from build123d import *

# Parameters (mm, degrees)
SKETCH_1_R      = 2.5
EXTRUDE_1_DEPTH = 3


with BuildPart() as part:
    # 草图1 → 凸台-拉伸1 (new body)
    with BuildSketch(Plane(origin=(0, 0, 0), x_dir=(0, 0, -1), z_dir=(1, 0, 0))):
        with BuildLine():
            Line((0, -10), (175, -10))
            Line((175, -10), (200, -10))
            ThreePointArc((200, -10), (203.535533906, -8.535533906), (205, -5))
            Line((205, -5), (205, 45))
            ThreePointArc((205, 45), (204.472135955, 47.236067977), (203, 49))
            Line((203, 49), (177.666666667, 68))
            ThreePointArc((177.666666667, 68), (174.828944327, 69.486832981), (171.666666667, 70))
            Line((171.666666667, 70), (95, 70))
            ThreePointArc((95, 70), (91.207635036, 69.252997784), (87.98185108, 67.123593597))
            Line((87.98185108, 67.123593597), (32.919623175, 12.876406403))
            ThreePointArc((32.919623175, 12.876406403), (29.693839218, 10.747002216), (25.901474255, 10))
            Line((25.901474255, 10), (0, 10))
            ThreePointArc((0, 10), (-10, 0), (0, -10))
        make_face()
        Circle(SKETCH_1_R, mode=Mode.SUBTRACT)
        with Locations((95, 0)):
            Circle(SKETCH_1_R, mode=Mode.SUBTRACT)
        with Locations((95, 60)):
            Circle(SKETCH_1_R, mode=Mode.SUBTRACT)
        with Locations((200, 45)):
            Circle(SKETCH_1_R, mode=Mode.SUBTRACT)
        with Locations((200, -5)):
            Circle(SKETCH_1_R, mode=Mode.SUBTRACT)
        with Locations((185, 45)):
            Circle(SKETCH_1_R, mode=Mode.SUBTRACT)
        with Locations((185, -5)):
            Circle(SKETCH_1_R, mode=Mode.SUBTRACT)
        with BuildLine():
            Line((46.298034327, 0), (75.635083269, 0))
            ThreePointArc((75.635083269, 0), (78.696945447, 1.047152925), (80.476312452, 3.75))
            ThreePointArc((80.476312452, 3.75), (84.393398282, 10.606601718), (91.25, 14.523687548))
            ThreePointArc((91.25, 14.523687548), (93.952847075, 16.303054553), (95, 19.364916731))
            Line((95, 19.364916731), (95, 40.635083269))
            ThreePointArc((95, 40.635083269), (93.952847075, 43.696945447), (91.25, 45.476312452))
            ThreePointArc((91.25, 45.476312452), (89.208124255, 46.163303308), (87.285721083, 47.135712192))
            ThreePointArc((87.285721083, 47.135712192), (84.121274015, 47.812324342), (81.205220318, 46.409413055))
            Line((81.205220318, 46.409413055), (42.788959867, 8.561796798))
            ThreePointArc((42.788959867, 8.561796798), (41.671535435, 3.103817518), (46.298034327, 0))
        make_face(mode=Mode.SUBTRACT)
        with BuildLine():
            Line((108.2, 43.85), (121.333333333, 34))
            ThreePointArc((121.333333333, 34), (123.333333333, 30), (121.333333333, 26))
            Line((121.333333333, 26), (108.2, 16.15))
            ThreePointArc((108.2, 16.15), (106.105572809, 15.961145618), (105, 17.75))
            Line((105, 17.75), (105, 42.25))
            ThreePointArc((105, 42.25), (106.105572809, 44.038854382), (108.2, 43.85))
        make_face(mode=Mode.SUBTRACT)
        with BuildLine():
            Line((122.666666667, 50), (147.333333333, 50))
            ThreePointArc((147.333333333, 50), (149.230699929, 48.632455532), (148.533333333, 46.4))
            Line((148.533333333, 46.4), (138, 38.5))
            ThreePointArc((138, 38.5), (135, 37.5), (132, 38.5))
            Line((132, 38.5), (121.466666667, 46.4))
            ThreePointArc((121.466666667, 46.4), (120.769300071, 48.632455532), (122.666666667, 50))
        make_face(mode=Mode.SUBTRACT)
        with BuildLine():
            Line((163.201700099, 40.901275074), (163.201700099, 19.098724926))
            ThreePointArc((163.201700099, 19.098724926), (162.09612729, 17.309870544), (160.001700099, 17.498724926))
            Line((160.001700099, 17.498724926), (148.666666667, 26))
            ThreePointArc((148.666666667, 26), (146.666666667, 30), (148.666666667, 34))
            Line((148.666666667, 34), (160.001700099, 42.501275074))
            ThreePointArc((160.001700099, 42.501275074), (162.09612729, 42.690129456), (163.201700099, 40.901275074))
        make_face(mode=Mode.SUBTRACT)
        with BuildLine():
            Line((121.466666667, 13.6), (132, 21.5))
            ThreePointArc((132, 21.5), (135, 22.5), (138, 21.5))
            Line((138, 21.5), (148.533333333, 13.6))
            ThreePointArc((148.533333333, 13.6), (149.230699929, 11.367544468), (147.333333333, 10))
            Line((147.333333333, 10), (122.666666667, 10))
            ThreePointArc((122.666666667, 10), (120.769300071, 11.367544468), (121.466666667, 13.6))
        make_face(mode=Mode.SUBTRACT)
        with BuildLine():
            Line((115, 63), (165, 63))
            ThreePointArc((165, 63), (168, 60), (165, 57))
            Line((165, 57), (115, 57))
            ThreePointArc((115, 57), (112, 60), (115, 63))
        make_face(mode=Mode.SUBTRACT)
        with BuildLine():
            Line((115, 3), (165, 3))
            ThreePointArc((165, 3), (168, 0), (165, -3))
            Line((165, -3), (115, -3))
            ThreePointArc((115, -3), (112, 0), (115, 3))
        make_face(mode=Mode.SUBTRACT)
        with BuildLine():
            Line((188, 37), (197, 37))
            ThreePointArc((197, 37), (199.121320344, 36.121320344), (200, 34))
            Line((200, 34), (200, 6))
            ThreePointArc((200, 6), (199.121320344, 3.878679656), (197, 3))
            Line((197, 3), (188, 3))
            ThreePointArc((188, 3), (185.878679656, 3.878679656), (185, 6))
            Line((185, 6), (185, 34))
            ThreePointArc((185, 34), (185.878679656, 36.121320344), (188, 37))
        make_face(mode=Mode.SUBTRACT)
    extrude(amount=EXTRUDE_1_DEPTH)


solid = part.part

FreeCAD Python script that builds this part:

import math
import FreeCAD as App
import Part
import Sketcher

doc = App.newDocument("Part")
body = doc.addObject("PartDesign::Body", "Body")

# Sketch on YZ plane
sketch1 = body.newObject("Sketcher::SketchObject", "Sketch")
sketch1.AttachmentSupport = (doc.getObject("YZ_Plane"), [""])
sketch1.MapMode = "FlatFace"
sketch1.addGeometry(Part.LineSegment(App.Vector(-10, 0, 0), App.Vector(-10, -200, 0)), False)
sketch1.addGeometry(Part.ArcOfCircle(Part.Circle(App.Vector(-5, -200, 0), App.Vector(0, 0, 1), 5), math.radians(180), math.radians(270)), False)
sketch1.addGeometry(Part.LineSegment(App.Vector(-5, -205, 0), App.Vector(45, -205, 0)), False)
sketch1.addGeometry(Part.ArcOfCircle(Part.Circle(App.Vector(45, -200, 0), App.Vector(0, 0, 1), 5), math.radians(-90), math.radians(-37)), False)
sketch1.addGeometry(Part.LineSegment(App.Vector(49, -203, 0), App.Vector(68, -177.7, 0)), False)
sketch1.addGeometry(Part.ArcOfCircle(Part.Circle(App.Vector(60, -171.7, 0), App.Vector(0, 0, 1), 10), math.radians(-37), math.radians(0)), False)
sketch1.addGeometry(Part.LineSegment(App.Vector(70, -171.7, 0), App.Vector(70, -95, 0)), False)
sketch1.addGeometry(Part.ArcOfCircle(Part.Circle(App.Vector(60, -95, 0), App.Vector(0, 0, 1), 10), math.radians(0), math.radians(45)), False)
sketch1.addGeometry(Part.LineSegment(App.Vector(67.1, -88, 0), App.Vector(12.9, -32.9, 0)), False)
sketch1.addGeometry(Part.ArcOfCircle(Part.Circle(App.Vector(20, -25.9, 0), App.Vector(0, 0, 1), 10), math.radians(180), math.radians(225)), False)
sketch1.addGeometry(Part.LineSegment(App.Vector(10, -25.9, 0), App.Vector(10, 0, 0)), False)
sketch1.addGeometry(Part.ArcOfCircle(Part.Circle(App.Vector(0, 0, 0), App.Vector(0, 0, 1), 10), math.radians(0), math.radians(180)), False)
sketch1.addGeometry(Part.Circle(App.Vector(0, 0, 0), App.Vector(0, 0, 1), 2.5), False)
sketch1.addGeometry(Part.Circle(App.Vector(0, -95, 0), App.Vector(0, 0, 1), 2.5), False)
sketch1.addGeometry(Part.LineSegment(App.Vector(0, -75.6, 0), App.Vector(0, -46.3, 0)), False)
sketch1.addGeometry(Part.ArcOfCircle(Part.Circle(App.Vector(5, -46.3, 0), App.Vector(0, 0, 1), 5), math.radians(45), math.radians(180)), False)
sketch1.addGeometry(Part.LineSegment(App.Vector(8.6, -42.8, 0), App.Vector(46.4, -81.2, 0)), False)
sketch1.addGeometry(Part.ArcOfCircle(Part.Circle(App.Vector(42.8, -84.7, 0), App.Vector(0, 0, 1), 5), math.radians(-31), math.radians(45)), False)
sketch1.addGeometry(Part.ArcOfCircle(Part.Circle(App.Vector(60, -95, 0), App.Vector(0, 0, 1), 15), math.radians(149.05), math.radians(165.52)), False)
sketch1.addGeometry(Part.ArcOfCircle(Part.Circle(App.Vector(40.6, -90, 0), App.Vector(0, 0, 1), 5), math.radians(-90), math.radians(-14)), False)
sketch1.addGeometry(Part.LineSegment(App.Vector(40.6, -95, 0), App.Vector(19.4, -95, 0)), False)
sketch1.addGeometry(Part.ArcOfCircle(Part.Circle(App.Vector(19.4, -90, 0), App.Vector(0, 0, 1), 5), math.radians(-166), math.radians(-90)), False)
sketch1.addGeometry(Part.ArcOfCircle(Part.Circle(App.Vector(0, -95, 0), App.Vector(0, 0, 1), 15), math.radians(14), math.radians(76)), False)
sketch1.addGeometry(Part.ArcOfCircle(Part.Circle(App.Vector(5, -75.6, 0), App.Vector(0, 0, 1), 5), math.radians(-180), math.radians(-104)), False)
sketch1.addGeometry(Part.ArcOfCircle(Part.Circle(App.Vector(0, -115, 0), App.Vector(0, 0, 1), 3), math.radians(0), math.radians(180)), False)
sketch1.addGeometry(Part.LineSegment(App.Vector(3, -115, 0), App.Vector(3, -165, 0)), False)
sketch1.addGeometry(Part.ArcOfCircle(Part.Circle(App.Vector(0, -165, 0), App.Vector(0, 0, 1), 3), math.radians(180), math.radians(360)), False)
sketch1.addGeometry(Part.LineSegment(App.Vector(-3, -165, 0), App.Vector(-3, -115, 0)), False)
sketch1.addGeometry(Part.Circle(App.Vector(-5, -185, 0), App.Vector(0, 0, 1), 2.5), False)
sketch1.addGeometry(Part.Circle(App.Vector(-5, -200, 0), App.Vector(0, 0, 1), 2.5), False)
sketch1.addGeometry(Part.ArcOfCircle(Part.Circle(App.Vector(12, -122.7, 0), App.Vector(0, 0, 1), 2), math.radians(37), math.radians(180)), False)
sketch1.addGeometry(Part.LineSegment(App.Vector(13.6, -121.5, 0), App.Vector(21.5, -132, 0)), False)
sketch1.addGeometry(Part.ArcOfCircle(Part.Circle(App.Vector(17.5, -135, 0), App.Vector(0, 0, 1), 5), math.radians(-37), math.radians(37)), False)
sketch1.addGeometry(Part.LineSegment(App.Vector(21.5, -138, 0), App.Vector(13.6, -148.5, 0)), False)
sketch1.addGeometry(Part.ArcOfCircle(Part.Circle(App.Vector(12, -147.3, 0), App.Vector(0, 0, 1), 2), math.radians(180), math.radians(323)), False)
sketch1.addGeometry(Part.LineSegment(App.Vector(10, -147.3, 0), App.Vector(10, -122.7, 0)), False)
sketch1.addGeometry(Part.ArcOfCircle(Part.Circle(App.Vector(34, -188, 0), App.Vector(0, 0, 1), 3), math.radians(0), math.radians(90)), False)
sketch1.addGeometry(Part.LineSegment(App.Vector(37, -188, 0), App.Vector(37, -197, 0)), False)
sketch1.addGeometry(Part.ArcOfCircle(Part.Circle(App.Vector(34, -197, 0), App.Vector(0, 0, 1), 3), math.radians(-90), math.radians(0)), False)
sketch1.addGeometry(Part.LineSegment(App.Vector(34, -200, 0), App.Vector(6, -200, 0)), False)
sketch1.addGeometry(Part.ArcOfCircle(Part.Circle(App.Vector(6, -197, 0), App.Vector(0, 0, 1), 3), math.radians(180), math.radians(270)), False)
sketch1.addGeometry(Part.LineSegment(App.Vector(3, -197, 0), App.Vector(3, -188, 0)), False)
sketch1.addGeometry(Part.ArcOfCircle(Part.Circle(App.Vector(6, -188, 0), App.Vector(0, 0, 1), 3), math.radians(90), math.radians(180)), False)
sketch1.addGeometry(Part.LineSegment(App.Vector(6, -185, 0), App.Vector(34, -185, 0)), False)
sketch1.addGeometry(Part.Circle(App.Vector(60, -95, 0), App.Vector(0, 0, 1), 2.5), False)
sketch1.addGeometry(Part.ArcOfCircle(Part.Circle(App.Vector(42.2, -107, 0), App.Vector(0, 0, 1), 2), math.radians(-37), math.radians(90)), False)
sketch1.addGeometry(Part.LineSegment(App.Vector(43.9, -108.2, 0), App.Vector(34, -121.3, 0)), False)
sketch1.addGeometry(Part.ArcOfCircle(Part.Circle(App.Vector(30, -118.3, 0), App.Vector(0, 0, 1), 5), math.radians(-143), math.radians(-37)), False)
sketch1.addGeometry(Part.LineSegment(App.Vector(26, -121.3, 0), App.Vector(16.1, -108.2, 0)), False)
sketch1.addGeometry(Part.ArcOfCircle(Part.Circle(App.Vector(17.8, -107, 0), App.Vector(0, 0, 1), 2), math.radians(90), math.radians(217)), False)
sketch1.addGeometry(Part.LineSegment(App.Vector(17.8, -105, 0), App.Vector(42.2, -105, 0)), False)
sketch1.addGeometry(Part.ArcOfCircle(Part.Circle(App.Vector(48, -122.7, 0), App.Vector(0, 0, 1), 2), math.radians(0), math.radians(143)), False)
sketch1.addGeometry(Part.LineSegment(App.Vector(50, -122.7, 0), App.Vector(50, -147.3, 0)), False)
sketch1.addGeometry(Part.ArcOfCircle(Part.Circle(App.Vector(48, -147.3, 0), App.Vector(0, 0, 1), 2), math.radians(-143), math.radians(0)), False)
sketch1.addGeometry(Part.LineSegment(App.Vector(46.4, -148.5, 0), App.Vector(38.5, -138, 0)), False)
sketch1.addGeometry(Part.ArcOfCircle(Part.Circle(App.Vector(42.5, -135, 0), App.Vector(0, 0, 1), 5), math.radians(143), math.radians(217)), False)
sketch1.addGeometry(Part.LineSegment(App.Vector(38.5, -132, 0), App.Vector(46.4, -121.5, 0)), False)
sketch1.addGeometry(Part.ArcOfCircle(Part.Circle(App.Vector(40.9, -161.2, 0), App.Vector(0, 0, 1), 2), math.radians(-90), math.radians(37)), False)
sketch1.addGeometry(Part.LineSegment(App.Vector(40.9, -163.2, 0), App.Vector(19.1, -163.2, 0)), False)
sketch1.addGeometry(Part.ArcOfCircle(Part.Circle(App.Vector(19.1, -161.2, 0), App.Vector(0, 0, 1), 2), math.radians(143), math.radians(270)), False)
sketch1.addGeometry(Part.LineSegment(App.Vector(17.5, -160, 0), App.Vector(26, -148.7, 0)), False)
sketch1.addGeometry(Part.ArcOfCircle(Part.Circle(App.Vector(30, -151.7, 0), App.Vector(0, 0, 1), 5), math.radians(37), math.radians(143)), False)
sketch1.addGeometry(Part.LineSegment(App.Vector(34, -148.7, 0), App.Vector(42.5, -160, 0)), False)
sketch1.addGeometry(Part.Circle(App.Vector(45, -185, 0), App.Vector(0, 0, 1), 2.5), False)
sketch1.addGeometry(Part.Circle(App.Vector(45, -200, 0), App.Vector(0, 0, 1), 2.5), False)
sketch1.addGeometry(Part.ArcOfCircle(Part.Circle(App.Vector(60, -115, 0), App.Vector(0, 0, 1), 3), math.radians(0), math.radians(180)), False)
sketch1.addGeometry(Part.LineSegment(App.Vector(63, -115, 0), App.Vector(63, -165, 0)), False)
sketch1.addGeometry(Part.ArcOfCircle(Part.Circle(App.Vector(60, -165, 0), App.Vector(0, 0, 1), 3), math.radians(180), math.radians(360)), False)
sketch1.addGeometry(Part.LineSegment(App.Vector(57, -165, 0), App.Vector(57, -115, 0)), False)
sketch1.addConstraint(Sketcher.Constraint("Tangent", 0, 2, 1, 1))
sketch1.addConstraint(Sketcher.Constraint("Tangent", 1, 2, 2, 1))
sketch1.addConstraint(Sketcher.Constraint("Tangent", 2, 2, 3, 1))
sketch1.addConstraint(Sketcher.Constraint("Tangent", 3, 2, 4, 1))
sketch1.addConstraint(Sketcher.Constraint("Tangent", 4, 2, 5, 1))
sketch1.addConstraint(Sketcher.Constraint("Tangent", 5, 2, 6, 1))
sketch1.addConstraint(Sketcher.Constraint("Tangent", 6, 2, 7, 1))
sketch1.addConstraint(Sketcher.Constraint("Tangent", 7, 2, 8, 1))
sketch1.addConstraint(Sketcher.Constraint("Tangent", 8, 2, 9, 2))
sketch1.addConstraint(Sketcher.Constraint("Tangent", 9, 1, 10, 1))
sketch1.addConstraint(Sketcher.Constraint("Tangent", 10, 2, 11, 1))
sketch1.addConstraint(Sketcher.Constraint("Tangent", 11, 2, 0, 1))
sketch1.addConstraint(Sketcher.Constraint("Tangent", 14, 2, 15, 2))
sketch1.addConstraint(Sketcher.Constraint("Tangent", 15, 1, 16, 1))
sketch1.addConstraint(Sketcher.Constraint("Tangent", 16, 2, 17, 2))
sketch1.addConstraint(Sketcher.Constraint("Tangent", 17, 1, 18, 1))
sketch1.addConstraint(Sketcher.Constraint("Tangent", 18, 2, 19, 2))
sketch1.addConstraint(Sketcher.Constraint("Tangent", 19, 1, 20, 1))
sketch1.addConstraint(Sketcher.Constraint("Tangent", 20, 2, 21, 2))
sketch1.addConstraint(Sketcher.Constraint("Tangent", 21, 1, 22, 1))
sketch1.addConstraint(Sketcher.Constraint("Tangent", 22, 2, 23, 2))
sketch1.addConstraint(Sketcher.Constraint("Tangent", 23, 1, 14, 1))
sketch1.addConstraint(Sketcher.Constraint("Tangent", 24, 1, 25, 1))
sketch1.addConstraint(Sketcher.Constraint("Tangent", 25, 2, 26, 2))
sketch1.addConstraint(Sketcher.Constraint("Tangent", 26, 1, 27, 1))
sketch1.addConstraint(Sketcher.Constraint("Tangent", 27, 2, 24, 2))
sketch1.addConstraint(Sketcher.Constraint("Tangent", 30, 1, 31, 1))
sketch1.addConstraint(Sketcher.Constraint("Tangent", 31, 2, 32, 2))
sketch1.addConstraint(Sketcher.Constraint("Tangent", 32, 1, 33, 1))
sketch1.addConstraint(Sketcher.Constraint("Tangent", 33, 2, 34, 2))
sketch1.addConstraint(Sketcher.Constraint("Tangent", 34, 1, 35, 1))
sketch1.addConstraint(Sketcher.Constraint("Tangent", 35, 2, 30, 2))
sketch1.addConstraint(Sketcher.Constraint("Tangent", 36, 1, 37, 1))
sketch1.addConstraint(Sketcher.Constraint("Tangent", 37, 2, 38, 2))
sketch1.addConstraint(Sketcher.Constraint("Tangent", 38, 1, 39, 1))
sketch1.addConstraint(Sketcher.Constraint("Tangent", 39, 2, 40, 2))
sketch1.addConstraint(Sketcher.Constraint("Tangent", 40, 1, 41, 1))
sketch1.addConstraint(Sketcher.Constraint("Tangent", 41, 2, 42, 2))
sketch1.addConstraint(Sketcher.Constraint("Tangent", 42, 1, 43, 1))
sketch1.addConstraint(Sketcher.Constraint("Tangent", 43, 2, 36, 2))
sketch1.addConstraint(Sketcher.Constraint("Tangent", 45, 1, 46, 1))
sketch1.addConstraint(Sketcher.Constraint("Tangent", 46, 2, 47, 2))
sketch1.addConstraint(Sketcher.Constraint("Tangent", 47, 1, 48, 1))
sketch1.addConstraint(Sketcher.Constraint("Tangent", 48, 2, 49, 2))
sketch1.addConstraint(Sketcher.Constraint("Tangent", 49, 1, 50, 1))
sketch1.addConstraint(Sketcher.Constraint("Tangent", 50, 2, 45, 2))
sketch1.addConstraint(Sketcher.Constraint("Tangent", 51, 1, 52, 1))
sketch1.addConstraint(Sketcher.Constraint("Tangent", 52, 2, 53, 2))
sketch1.addConstraint(Sketcher.Constraint("Tangent", 53, 1, 54, 1))
sketch1.addConstraint(Sketcher.Constraint("Tangent", 54, 2, 55, 2))
sketch1.addConstraint(Sketcher.Constraint("Tangent", 55, 1, 56, 1))
sketch1.addConstraint(Sketcher.Constraint("Tangent", 56, 2, 51, 2))
sketch1.addConstraint(Sketcher.Constraint("Tangent", 57, 1, 58, 1))
sketch1.addConstraint(Sketcher.Constraint("Tangent", 58, 2, 59, 2))
sketch1.addConstraint(Sketcher.Constraint("Tangent", 59, 1, 60, 1))
sketch1.addConstraint(Sketcher.Constraint("Tangent", 60, 2, 61, 2))
sketch1.addConstraint(Sketcher.Constraint("Tangent", 61, 1, 62, 1))
sketch1.addConstraint(Sketcher.Constraint("Tangent", 62, 2, 57, 2))
sketch1.addConstraint(Sketcher.Constraint("Tangent", 65, 1, 66, 1))
sketch1.addConstraint(Sketcher.Constraint("Tangent", 66, 2, 67, 2))
sketch1.addConstraint(Sketcher.Constraint("Tangent", 67, 1, 68, 1))
sketch1.addConstraint(Sketcher.Constraint("Tangent", 68, 2, 65, 2))
sketch1.addConstraint(Sketcher.Constraint("Vertical", 0))
sketch1.addConstraint(Sketcher.Constraint("Horizontal", 2))
sketch1.addConstraint(Sketcher.Constraint("Vertical", 6))
sketch1.addConstraint(Sketcher.Constraint("Vertical", 10))
sketch1.addConstraint(Sketcher.Constraint("Vertical", 14))
sketch1.addConstraint(Sketcher.Constraint("Horizontal", 20))
sketch1.addConstraint(Sketcher.Constraint("Vertical", 25))
sketch1.addConstraint(Sketcher.Constraint("Vertical", 27))
sketch1.addConstraint(Sketcher.Constraint("Vertical", 35))
sketch1.addConstraint(Sketcher.Constraint("Vertical", 37))
sketch1.addConstraint(Sketcher.Constraint("Horizontal", 39))
sketch1.addConstraint(Sketcher.Constraint("Vertical", 41))
sketch1.addConstraint(Sketcher.Constraint("Horizontal", 43))
sketch1.addConstraint(Sketcher.Constraint("Horizontal", 50))
sketch1.addConstraint(Sketcher.Constraint("Vertical", 52))
sketch1.addConstraint(Sketcher.Constraint("Horizontal", 58))
sketch1.addConstraint(Sketcher.Constraint("Vertical", 66))
sketch1.addConstraint(Sketcher.Constraint("Vertical", 68))
sketch1.addConstraint(Sketcher.Constraint("Coincident", 11, 3, -1, 1))
sketch1.addConstraint(Sketcher.Constraint("Coincident", 12, 3, -1, 1))
sketch1.addConstraint(Sketcher.Constraint("Coincident", 18, 3, 7, 3))
sketch1.addConstraint(Sketcher.Constraint("Coincident", 22, 3, 13, 3))
sketch1.addConstraint(Sketcher.Constraint("Coincident", 29, 3, 1, 3))
sketch1.addConstraint(Sketcher.Constraint("Coincident", 44, 3, 7, 3))
sketch1.addConstraint(Sketcher.Constraint("Coincident", 64, 3, 3, 3))
sketch1.addConstraint(Sketcher.Constraint("Equal", 1, 3))
sketch1.addConstraint(Sketcher.Constraint("Equal", 5, 7))
sketch1.addConstraint(Sketcher.Constraint("Equal", 7, 9))
sketch1.addConstraint(Sketcher.Constraint("Equal", 9, 11))
sketch1.addConstraint(Sketcher.Constraint("Equal", 12, 13))
sketch1.addConstraint(Sketcher.Constraint("Equal", 3, 15))
sketch1.addConstraint(Sketcher.Constraint("Equal", 15, 17))
sketch1.addConstraint(Sketcher.Constraint("Equal", 17, 19))
sketch1.addConstraint(Sketcher.Constraint("Equal", 19, 21))
sketch1.addConstraint(Sketcher.Constraint("Equal", 18, 22))
sketch1.addConstraint(Sketcher.Constraint("Equal", 21, 23))
sketch1.addConstraint(Sketcher.Constraint("Equal", 13, 28))
sketch1.addConstraint(Sketcher.Constraint("Equal", 28, 29))
sketch1.addConstraint(Sketcher.Constraint("Equal", 23, 32))
sketch1.addConstraint(Sketcher.Constraint("Equal", 30, 34))
sketch1.addConstraint(Sketcher.Constraint("Equal", 26, 36))
sketch1.addConstraint(Sketcher.Constraint("Equal", 36, 38))
sketch1.addConstraint(Sketcher.Constraint("Equal", 38, 40))
sketch1.addConstraint(Sketcher.Constraint("Equal", 40, 42))
sketch1.addConstraint(Sketcher.Constraint("Equal", 29, 44))
sketch1.addConstraint(Sketcher.Constraint("Equal", 34, 45))
sketch1.addConstraint(Sketcher.Constraint("Equal", 32, 47))
sketch1.addConstraint(Sketcher.Constraint("Equal", 45, 49))
sketch1.addConstraint(Sketcher.Constraint("Equal", 49, 51))
sketch1.addConstraint(Sketcher.Constraint("Equal", 51, 53))
sketch1.addConstraint(Sketcher.Constraint("Equal", 47, 55))
sketch1.addConstraint(Sketcher.Constraint("Equal", 53, 57))
sketch1.addConstraint(Sketcher.Constraint("Equal", 57, 59))
sketch1.addConstraint(Sketcher.Constraint("Equal", 55, 61))
sketch1.addConstraint(Sketcher.Constraint("Equal", 44, 63))
sketch1.addConstraint(Sketcher.Constraint("Equal", 63, 64))
sketch1.addConstraint(Sketcher.Constraint("Equal", 42, 65))
sketch1.addConstraint(Sketcher.Constraint("PointOnObject", 13, 3, -2))
sketch1.addConstraint(Sketcher.Constraint("PointOnObject", 24, 3, -2))
sketch1.addConstraint(Sketcher.Constraint("PointOnObject", 14, 2, -2))
sketch1.addConstraint(Sketcher.Constraint("Parallel", 8, 16))
sketch1.addConstraint(Sketcher.Constraint("Parallel", 4, 33))
sketch1.addConstraint(Sketcher.Constraint("Parallel", 33, 46))
sketch1.addConstraint(Sketcher.Constraint("Parallel", 31, 48))
sketch1.addConstraint(Sketcher.Constraint("Parallel", 48, 54))
sketch1.addConstraint(Sketcher.Constraint("Parallel", 46, 56))
sketch1.addConstraint(Sketcher.Constraint("Parallel", 56, 60))
sketch1.addConstraint(Sketcher.Constraint("Parallel", 54, 62))
sketch1.addConstraint(Sketcher.Constraint("Horizontal", 7, 3, 13, 3))
sketch1.addConstraint(Sketcher.Constraint("Horizontal", 30, 3, 51, 3))
sketch1.addConstraint(Sketcher.Constraint("Horizontal", 34, 3, 53, 3))
sketch1.addConstraint(Sketcher.Constraint("Horizontal", 32, 3, 55, 3))
sketch1.addConstraint(Sketcher.Constraint("Horizontal", 28, 3, 63, 3))
sketch1.addConstraint(Sketcher.Constraint("Horizontal", 24, 3, 65, 3))
sketch1.addConstraint(Sketcher.Constraint("Horizontal", 26, 3, 67, 3))
sketch1.addConstraint(Sketcher.Constraint("Horizontal", 6, 2, 19, 1))
sketch1.addConstraint(Sketcher.Constraint("Horizontal", 0, 2, 38, 1))
sketch1.addConstraint(Sketcher.Constraint("Horizontal", 63, 3, 42, 1))
sketch1.addConstraint(Sketcher.Constraint("Vertical", 1, 3, 28, 3))
sketch1.addConstraint(Sketcher.Constraint("Vertical", 47, 3, 61, 3))
sketch1.addConstraint(Sketcher.Constraint("Vertical", 3, 3, 63, 3))
sketch1.addConstraint(Sketcher.Constraint("Vertical", 44, 3, 65, 3))
sketch1.addConstraint(Sketcher.Constraint("Vertical", 10, 2, 34, 1))
sketch1.addConstraint(Sketcher.Constraint("Vertical", 25, 2, 40, 1))
sketch1.addConstraint(Sketcher.Constraint("Vertical", 43, 2, 46, 2))
sketch1.addConstraint(Sketcher.Constraint("Equal", 2, 25))
sketch1.addConstraint(Sketcher.Constraint("Diameter", 12, 5.0))
sketch1.addConstraint(Sketcher.Constraint("Radius", 1, 5.0))
sketch1.addConstraint(Sketcher.Constraint("Radius", 5, 10.0))
sketch1.addConstraint(Sketcher.Constraint("Radius", 18, 15.0))
sketch1.addConstraint(Sketcher.Constraint("Radius", 24, 3.0))
sketch1.addConstraint(Sketcher.Constraint("Radius", 30, 2.0))
sketch1.addConstraint(Sketcher.Constraint("DistanceX", 2, 1, 2, 2, 50.0))
sketch1.addConstraint(Sketcher.Constraint("DistanceX", 39, 2, 39, 1, 28.0))
sketch1.addConstraint(Sketcher.Constraint("DistanceY", 0, 2, 0, 1, 200.0))
sketch1.addConstraint(Sketcher.Constraint("DistanceY", 37, 2, 37, 1, 9.0))
sketch1.addConstraint(Sketcher.Constraint("DistanceX", 50, 1, 50, 2, 24.5))
sketch1.addConstraint(Sketcher.Constraint("DistanceX", -1, 1, 5, 3, 60.0))
sketch1.addConstraint(Sketcher.Constraint("DistanceY", 7, 3, -1, 1, 95.0))
sketch1.addConstraint(Sketcher.Constraint("DistanceY", 24, 3, -1, 1, 115.0))
sketch1.addConstraint(Sketcher.Constraint("DistanceY", 32, 3, -1, 1, 135.0))
sketch1.addConstraint(Sketcher.Constraint("DistanceY", 45, 3, -1, 1, 107.0))
sketch1.addConstraint(Sketcher.Constraint("DistanceX", -1, 1, 47, 3, 30.0))
sketch1.addConstraint(Sketcher.Constraint("DistanceX", -1, 1, 51, 3, 48.0))
sketch1.addConstraint(Sketcher.Constraint("DistanceX", -1, 1, 32, 3, 17.5))
sketch1.addConstraint(Sketcher.Constraint("DistanceX", 58, 2, 58, 1, 21.80255))
sketch1.addConstraint(Sketcher.Constraint("DistanceY", 14, 1, 14, 2, 29.337049))
sketch1.addConstraint(Sketcher.Constraint("DistanceY", 57, 3, -1, 1, 161.2017))
sketch1.addConstraint(Sketcher.Constraint("DistanceY", 10, 1, 10, 2, 25.901474))
pad1 = body.newObject("PartDesign::Pad", "Pad")
pad1.Profile = sketch1
pad1.Length = 3

doc.recompute()
